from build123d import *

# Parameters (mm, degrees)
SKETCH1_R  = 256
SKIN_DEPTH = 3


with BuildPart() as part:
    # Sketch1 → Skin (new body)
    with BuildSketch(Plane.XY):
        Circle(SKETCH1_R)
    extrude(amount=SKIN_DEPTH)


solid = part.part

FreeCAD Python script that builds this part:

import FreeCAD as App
import Part
import Sketcher

doc = App.newDocument("Part")
body = doc.addObject("PartDesign::Body", "Body")

# Sketch on XY plane
sketch1 = doc.addObject("Sketcher::SketchObject", "Sketch")
body.addObject(sketch1)
sketch1.AttachmentSupport = (doc.XY_Plane, [""])
sketch1.MapMode = "FlatFace"
sketch1.addGeometry(Part.Circle(App.Vector(0, 0, 0), App.Vector(0, 0, 1), 256), False)
sketch1.addConstraint([
    Sketcher.Constraint("Coincident", 0, 3, -1, 1),
    Sketcher.Constraint("Diameter", 0, 512.0),
])
pad1 = doc.addObject("PartDesign::Pad", "Pad")
body.addObject(pad1)
pad1.Profile = sketch1
pad1.Length = 3

doc.recompute()
